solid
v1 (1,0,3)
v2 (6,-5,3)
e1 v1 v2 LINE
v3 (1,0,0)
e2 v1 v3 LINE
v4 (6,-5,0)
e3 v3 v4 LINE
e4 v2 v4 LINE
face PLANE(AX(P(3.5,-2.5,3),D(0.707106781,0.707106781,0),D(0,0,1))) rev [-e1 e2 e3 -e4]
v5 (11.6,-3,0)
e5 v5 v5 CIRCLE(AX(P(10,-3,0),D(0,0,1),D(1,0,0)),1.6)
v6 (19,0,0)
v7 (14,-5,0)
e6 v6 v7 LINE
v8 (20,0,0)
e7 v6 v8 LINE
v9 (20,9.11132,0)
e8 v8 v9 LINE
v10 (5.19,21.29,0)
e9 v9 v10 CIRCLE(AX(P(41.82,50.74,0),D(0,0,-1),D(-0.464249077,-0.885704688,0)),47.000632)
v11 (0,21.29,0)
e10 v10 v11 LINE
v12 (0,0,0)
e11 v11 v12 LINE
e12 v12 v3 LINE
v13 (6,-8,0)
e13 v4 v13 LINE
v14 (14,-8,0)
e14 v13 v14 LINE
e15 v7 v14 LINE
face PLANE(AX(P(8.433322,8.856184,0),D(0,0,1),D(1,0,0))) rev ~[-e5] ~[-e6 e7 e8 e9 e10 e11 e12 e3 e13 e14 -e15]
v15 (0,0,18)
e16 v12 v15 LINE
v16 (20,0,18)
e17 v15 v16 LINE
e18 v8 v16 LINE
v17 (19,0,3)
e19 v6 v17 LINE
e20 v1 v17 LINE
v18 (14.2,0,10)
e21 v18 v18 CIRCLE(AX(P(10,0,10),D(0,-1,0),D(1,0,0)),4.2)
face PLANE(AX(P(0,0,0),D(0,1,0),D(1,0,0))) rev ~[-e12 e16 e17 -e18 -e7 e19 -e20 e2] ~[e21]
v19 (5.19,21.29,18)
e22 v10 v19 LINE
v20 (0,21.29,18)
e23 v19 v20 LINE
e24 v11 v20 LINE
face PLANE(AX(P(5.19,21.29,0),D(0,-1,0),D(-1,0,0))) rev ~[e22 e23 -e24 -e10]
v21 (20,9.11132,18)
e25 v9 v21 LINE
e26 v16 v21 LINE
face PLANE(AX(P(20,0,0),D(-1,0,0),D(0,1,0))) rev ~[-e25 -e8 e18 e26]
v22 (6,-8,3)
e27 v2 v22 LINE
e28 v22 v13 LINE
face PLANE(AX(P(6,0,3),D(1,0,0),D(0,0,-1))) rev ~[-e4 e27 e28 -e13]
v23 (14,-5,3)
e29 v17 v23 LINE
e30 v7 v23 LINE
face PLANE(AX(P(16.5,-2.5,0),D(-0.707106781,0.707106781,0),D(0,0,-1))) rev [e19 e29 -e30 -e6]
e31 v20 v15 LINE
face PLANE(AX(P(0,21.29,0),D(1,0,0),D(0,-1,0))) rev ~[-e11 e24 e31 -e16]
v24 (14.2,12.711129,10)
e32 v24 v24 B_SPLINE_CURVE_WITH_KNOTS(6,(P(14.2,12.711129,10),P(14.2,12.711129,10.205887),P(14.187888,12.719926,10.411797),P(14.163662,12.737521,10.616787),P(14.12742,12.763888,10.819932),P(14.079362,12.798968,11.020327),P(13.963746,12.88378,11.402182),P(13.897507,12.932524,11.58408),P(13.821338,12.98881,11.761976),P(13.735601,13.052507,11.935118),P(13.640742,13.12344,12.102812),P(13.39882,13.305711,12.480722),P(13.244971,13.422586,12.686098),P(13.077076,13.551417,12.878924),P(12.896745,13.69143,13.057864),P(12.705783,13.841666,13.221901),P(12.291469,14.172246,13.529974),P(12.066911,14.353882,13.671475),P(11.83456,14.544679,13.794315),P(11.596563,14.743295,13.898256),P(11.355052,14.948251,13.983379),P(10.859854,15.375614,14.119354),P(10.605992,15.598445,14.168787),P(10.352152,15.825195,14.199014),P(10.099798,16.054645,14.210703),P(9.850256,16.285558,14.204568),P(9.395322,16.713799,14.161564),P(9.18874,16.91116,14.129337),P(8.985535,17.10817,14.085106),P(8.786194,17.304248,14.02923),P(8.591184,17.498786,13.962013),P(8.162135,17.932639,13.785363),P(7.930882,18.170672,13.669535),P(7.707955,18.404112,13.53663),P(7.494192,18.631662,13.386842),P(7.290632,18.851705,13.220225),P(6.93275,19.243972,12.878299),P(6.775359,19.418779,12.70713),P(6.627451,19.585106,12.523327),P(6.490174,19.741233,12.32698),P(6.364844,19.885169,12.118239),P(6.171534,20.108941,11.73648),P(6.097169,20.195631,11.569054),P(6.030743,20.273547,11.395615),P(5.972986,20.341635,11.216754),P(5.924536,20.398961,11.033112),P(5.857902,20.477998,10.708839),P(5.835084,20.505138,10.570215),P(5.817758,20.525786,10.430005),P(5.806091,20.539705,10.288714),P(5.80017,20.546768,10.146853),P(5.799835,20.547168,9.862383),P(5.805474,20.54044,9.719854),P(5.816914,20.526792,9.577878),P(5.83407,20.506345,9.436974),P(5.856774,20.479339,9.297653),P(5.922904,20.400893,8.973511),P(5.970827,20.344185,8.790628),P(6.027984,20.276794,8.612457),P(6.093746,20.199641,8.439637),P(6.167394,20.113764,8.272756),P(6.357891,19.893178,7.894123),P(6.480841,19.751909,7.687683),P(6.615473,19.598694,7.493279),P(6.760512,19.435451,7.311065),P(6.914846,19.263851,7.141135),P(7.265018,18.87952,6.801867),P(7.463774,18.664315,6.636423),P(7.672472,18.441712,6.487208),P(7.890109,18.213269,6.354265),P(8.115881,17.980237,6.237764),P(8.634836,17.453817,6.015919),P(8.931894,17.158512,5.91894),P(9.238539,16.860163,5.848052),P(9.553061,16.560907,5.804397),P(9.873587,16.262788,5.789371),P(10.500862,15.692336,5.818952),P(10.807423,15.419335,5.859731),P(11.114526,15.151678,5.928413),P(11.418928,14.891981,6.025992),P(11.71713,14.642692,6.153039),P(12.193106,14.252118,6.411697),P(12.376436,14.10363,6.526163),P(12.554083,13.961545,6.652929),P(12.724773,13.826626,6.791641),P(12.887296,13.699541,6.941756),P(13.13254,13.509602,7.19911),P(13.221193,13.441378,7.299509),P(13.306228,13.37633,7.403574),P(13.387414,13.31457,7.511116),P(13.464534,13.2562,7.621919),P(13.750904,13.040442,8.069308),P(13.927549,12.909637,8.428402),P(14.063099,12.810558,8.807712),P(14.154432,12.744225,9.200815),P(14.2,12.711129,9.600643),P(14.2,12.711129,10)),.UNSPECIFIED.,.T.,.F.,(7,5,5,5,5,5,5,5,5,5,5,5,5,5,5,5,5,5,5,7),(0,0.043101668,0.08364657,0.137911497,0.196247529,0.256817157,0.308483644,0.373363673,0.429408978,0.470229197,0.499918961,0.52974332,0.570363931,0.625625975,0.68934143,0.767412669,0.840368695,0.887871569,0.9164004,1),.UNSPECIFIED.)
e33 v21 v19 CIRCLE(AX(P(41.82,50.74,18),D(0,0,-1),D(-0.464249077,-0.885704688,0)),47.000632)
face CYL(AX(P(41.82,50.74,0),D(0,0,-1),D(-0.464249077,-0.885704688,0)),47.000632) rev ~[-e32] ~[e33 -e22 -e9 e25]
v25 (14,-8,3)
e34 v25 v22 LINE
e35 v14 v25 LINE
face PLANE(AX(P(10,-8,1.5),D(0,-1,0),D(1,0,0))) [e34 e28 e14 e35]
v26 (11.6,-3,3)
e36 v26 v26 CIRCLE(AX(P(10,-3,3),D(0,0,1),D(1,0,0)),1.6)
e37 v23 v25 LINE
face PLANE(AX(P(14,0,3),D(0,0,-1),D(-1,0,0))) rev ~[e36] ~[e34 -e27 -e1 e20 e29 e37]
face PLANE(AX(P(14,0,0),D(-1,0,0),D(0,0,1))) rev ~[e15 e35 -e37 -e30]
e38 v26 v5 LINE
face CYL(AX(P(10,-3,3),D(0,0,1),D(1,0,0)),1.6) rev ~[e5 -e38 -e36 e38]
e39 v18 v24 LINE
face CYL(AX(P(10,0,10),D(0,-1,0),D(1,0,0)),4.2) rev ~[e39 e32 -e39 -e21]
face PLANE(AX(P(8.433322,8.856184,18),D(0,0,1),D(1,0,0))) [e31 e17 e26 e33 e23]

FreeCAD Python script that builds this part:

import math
import FreeCAD as App
import Part
import Sketcher
Q = App.Units.Quantity


def edges_at(feature, points):
    """Names of the edges that pass closest to the given points."""
    edges = feature.Shape.Edges
    near = lambda p: min(range(len(edges)), key=lambda i: edges[i].distToShape(Part.Vertex(*p))[0])
    return sorted({f"Edge{near(p) + 1}" for p in points})

doc = App.newDocument("Part")
body = doc.addObject("PartDesign::Body", "Body")

# Sketch on XY plane
sketch1 = body.newObject("Sketcher::SketchObject", "Sketch")
sketch1.AttachmentSupport = (doc.getObject("XY_Plane"), [""])
sketch1.MapMode = "FlatFace"
sketch1.addGeometry([
    Part.LineSegment(App.Vector(0, 0, 0), App.Vector(20, 0, 0)),  # 0
    Part.LineSegment(App.Vector(20, 0, 0), App.Vector(20, 9, 0)),  # 1
    Part.ArcOfCircle(Part.Circle(App.Vector(42, 51, 0), App.Vector(0, 0, 1), 47), math.radians(-141), math.radians(-118)),  # 2
    Part.LineSegment(App.Vector(5, 21, 0), App.Vector(0, 21, 0)),  # 3
    Part.LineSegment(App.Vector(0, 21, 0), App.Vector(0, 0, 0)),  # 4
], False)
sketch1.addConstraint([
    Sketcher.Constraint("Coincident", 0, 2, 1, 1),
    Sketcher.Constraint("Coincident", 1, 2, 2, 2),
    Sketcher.Constraint("Coincident", 2, 1, 3, 1),
    Sketcher.Constraint("Coincident", 3, 2, 4, 1),
    Sketcher.Constraint("Coincident", 4, 2, 0, 1),
    Sketcher.Constraint("Horizontal", 0),
    Sketcher.Constraint("Vertical", 1),
    Sketcher.Constraint("Horizontal", 3),
    Sketcher.Constraint("Vertical", 4),
    Sketcher.Constraint("Coincident", 4, 2, -1, 1),
    Sketcher.Constraint("DistanceX", 0, 1, 0, 2, Q("20 mm")),
    Sketcher.Constraint("DistanceX", 3, 2, 3, 1, Q("5.19 mm")),
    Sketcher.Constraint("DistanceY", 4, 2, 4, 1, Q("21.29 mm")),
    Sketcher.Constraint("DistanceX", -1, 1, 2, 3, Q("41.82 mm")),
    Sketcher.Constraint("DistanceY", -1, 1, 2, 3, Q("50.74 mm")),
])
pad1 = body.newObject("PartDesign::Pad", "Pad")
pad1.Profile = sketch1
pad1.Length = 18

# Sketch on XZ plane
sketch2 = body.newObject("Sketcher::SketchObject", "Sketch001")
sketch2.AttachmentSupport = (doc.getObject("XZ_Plane"), [""])
sketch2.MapMode = "FlatFace"
sketch2.addGeometry(Part.Circle(App.Vector(10, 10, 0), App.Vector(0, 0, 1), 4.2), False)
sketch2.addConstraint([
    Sketcher.Constraint("Diameter", 0, Q("8.4 mm")),
    Sketcher.Constraint("DistanceX", -1, 1, 0, 3, Q("10 mm")),
    Sketcher.Constraint("DistanceY", -1, 1, 0, 3, Q("10 mm")),
])
pocket1 = body.newObject("PartDesign::Pocket", "Pocket")
pocket1.Profile = sketch2
pocket1.Length = 28

# Sketch on XZ plane
sketch3 = body.newObject("Sketcher::SketchObject", "Sketch002")
sketch3.AttachmentSupport = (doc.getObject("XZ_Plane"), [""])
sketch3.MapMode = "FlatFace"
sketch3.addGeometry([
    Part.LineSegment(App.Vector(14, 0, 0), App.Vector(14, 3, 0)),
    Part.LineSegment(App.Vector(14, 3, 0), App.Vector(6, 3, 0)),
    Part.LineSegment(App.Vector(6, 3, 0), App.Vector(6, 0, 0)),
    Part.LineSegment(App.Vector(6, 0, 0), App.Vector(14, 0, 0)),
], False)
sketch3.addConstraint([
    Sketcher.Constraint("Coincident", 0, 2, 1, 1),
    Sketcher.Constraint("Coincident", 1, 2, 2, 1),
    Sketcher.Constraint("Coincident", 2, 2, 3, 1),
    Sketcher.Constraint("Coincident", 3, 2, 0, 1),
    Sketcher.Constraint("Vertical", 0),
    Sketcher.Constraint("Horizontal", 1),
    Sketcher.Constraint("Vertical", 2),
    Sketcher.Constraint("Horizontal", 3),
    Sketcher.Constraint("PointOnObject", 2, 2, -1),
    Sketcher.Constraint("DistanceX", 1, 2, 1, 1, Q("8 mm")),
    Sketcher.Constraint("DistanceY", 0, 1, 0, 2, Q("3 mm")),
    Sketcher.Constraint("DistanceX", -1, 1, 0, 2, Q("14 mm")),
])
pad2 = body.newObject("PartDesign::Pad", "Pad001")
pad2.Profile = sketch3
pad2.Length = 8

# Sketch on XY plane
sketch4 = body.newObject("Sketcher::SketchObject", "Sketch003")
sketch4.AttachmentSupport = (doc.getObject("XY_Plane"), [""])
sketch4.MapMode = "FlatFace"
sketch4.AttachmentOffset = App.Placement(App.Vector(0, 0, 3), App.Rotation())
sketch4.addGeometry(Part.Circle(App.Vector(10, -3, 0), App.Vector(0, 0, 1), 1.6), False)
sketch4.addConstraint([
    Sketcher.Constraint("Diameter", 0, Q("3.2 mm")),
    Sketcher.Constraint("DistanceX", -1, 1, 0, 3, Q("10 mm")),
    Sketcher.Constraint("DistanceY", 0, 3, -1, 1, Q("3 mm")),
])
pocket2 = body.newObject("PartDesign::Pocket", "Pocket001")
pocket2.Profile = sketch4
pocket2.Length = 8
doc.recompute()

chamfer = body.newObject("PartDesign::Chamfer", "Chamfer")
chamfer.Base = (pocket2, edges_at(pocket2, [(6, 0, 1.5)]))
chamfer.Size = 5
doc.recompute()

chamfer2 = body.newObject("PartDesign::Chamfer", "Chamfer001")
chamfer2.Base = (chamfer, edges_at(chamfer, [(14, 0, 1.5)]))
chamfer2.Size = 5

doc.recompute()
